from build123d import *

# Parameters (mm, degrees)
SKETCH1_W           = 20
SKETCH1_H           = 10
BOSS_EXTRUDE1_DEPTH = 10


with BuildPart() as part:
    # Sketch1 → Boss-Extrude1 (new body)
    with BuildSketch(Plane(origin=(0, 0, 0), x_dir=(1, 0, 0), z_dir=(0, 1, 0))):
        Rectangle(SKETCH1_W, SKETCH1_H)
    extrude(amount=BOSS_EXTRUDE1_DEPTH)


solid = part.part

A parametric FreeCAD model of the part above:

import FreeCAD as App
import Part
import Sketcher
Q = App.Units.Quantity

doc = App.newDocument("Part")
body = doc.addObject("PartDesign::Body", "Body")

# Sketch on XZ plane
sketch1 = doc.addObject("Sketcher::SketchObject", "Sketch")
body.addObject(sketch1)
sketch1.AttachmentSupport = (doc.XZ_Plane, [""])
sketch1.MapMode = "FlatFace"
sketch1.addGeometry(Part.LineSegment(App.Vector(-10, -5, 0), App.Vector(-10, 5, 0)), False)
sketch1.addGeometry(Part.LineSegment(App.Vector(-10, 5, 0), App.Vector(10, 5, 0)), False)
sketch1.addGeometry(Part.LineSegment(App.Vector(10, 5, 0), App.Vector(10, -5, 0)), False)
sketch1.addGeometry(Part.LineSegment(App.Vector(10, -5, 0), App.Vector(-10, -5, 0)), False)
sketch1.addConstraint(Sketcher.Constraint("Coincident", 0, 2, 1, 1))
sketch1.addConstraint(Sketcher.Constraint("Coincident", 1, 2, 2, 1))
sketch1.addConstraint(Sketcher.Constraint("Coincident", 2, 2, 3, 1))
sketch1.addConstraint(Sketcher.Constraint("Coincident", 3, 2, 0, 1))
sketch1.addConstraint(Sketcher.Constraint("Vertical", 0))
sketch1.addConstraint(Sketcher.Constraint("Horizontal", 1))
sketch1.addConstraint(Sketcher.Constraint("Vertical", 2))
sketch1.addConstraint(Sketcher.Constraint("Horizontal", 3))
sketch1.addConstraint(Sketcher.Constraint("Symmetric", 0, 2, 2, 2, -1, 1))
sketch1.addConstraint(Sketcher.Constraint("DistanceX", 1, 1, 1, 2, Q("20 mm")))
sketch1.addConstraint(Sketcher.Constraint("DistanceY", 0, 1, 0, 2, Q("10 mm")))
pad1 = doc.addObject("PartDesign::Pad", "Pad")
body.addObject(pad1)
pad1.Profile = sketch1
pad1.Length = 10
pad1.Reversed = True

doc.recompute()
